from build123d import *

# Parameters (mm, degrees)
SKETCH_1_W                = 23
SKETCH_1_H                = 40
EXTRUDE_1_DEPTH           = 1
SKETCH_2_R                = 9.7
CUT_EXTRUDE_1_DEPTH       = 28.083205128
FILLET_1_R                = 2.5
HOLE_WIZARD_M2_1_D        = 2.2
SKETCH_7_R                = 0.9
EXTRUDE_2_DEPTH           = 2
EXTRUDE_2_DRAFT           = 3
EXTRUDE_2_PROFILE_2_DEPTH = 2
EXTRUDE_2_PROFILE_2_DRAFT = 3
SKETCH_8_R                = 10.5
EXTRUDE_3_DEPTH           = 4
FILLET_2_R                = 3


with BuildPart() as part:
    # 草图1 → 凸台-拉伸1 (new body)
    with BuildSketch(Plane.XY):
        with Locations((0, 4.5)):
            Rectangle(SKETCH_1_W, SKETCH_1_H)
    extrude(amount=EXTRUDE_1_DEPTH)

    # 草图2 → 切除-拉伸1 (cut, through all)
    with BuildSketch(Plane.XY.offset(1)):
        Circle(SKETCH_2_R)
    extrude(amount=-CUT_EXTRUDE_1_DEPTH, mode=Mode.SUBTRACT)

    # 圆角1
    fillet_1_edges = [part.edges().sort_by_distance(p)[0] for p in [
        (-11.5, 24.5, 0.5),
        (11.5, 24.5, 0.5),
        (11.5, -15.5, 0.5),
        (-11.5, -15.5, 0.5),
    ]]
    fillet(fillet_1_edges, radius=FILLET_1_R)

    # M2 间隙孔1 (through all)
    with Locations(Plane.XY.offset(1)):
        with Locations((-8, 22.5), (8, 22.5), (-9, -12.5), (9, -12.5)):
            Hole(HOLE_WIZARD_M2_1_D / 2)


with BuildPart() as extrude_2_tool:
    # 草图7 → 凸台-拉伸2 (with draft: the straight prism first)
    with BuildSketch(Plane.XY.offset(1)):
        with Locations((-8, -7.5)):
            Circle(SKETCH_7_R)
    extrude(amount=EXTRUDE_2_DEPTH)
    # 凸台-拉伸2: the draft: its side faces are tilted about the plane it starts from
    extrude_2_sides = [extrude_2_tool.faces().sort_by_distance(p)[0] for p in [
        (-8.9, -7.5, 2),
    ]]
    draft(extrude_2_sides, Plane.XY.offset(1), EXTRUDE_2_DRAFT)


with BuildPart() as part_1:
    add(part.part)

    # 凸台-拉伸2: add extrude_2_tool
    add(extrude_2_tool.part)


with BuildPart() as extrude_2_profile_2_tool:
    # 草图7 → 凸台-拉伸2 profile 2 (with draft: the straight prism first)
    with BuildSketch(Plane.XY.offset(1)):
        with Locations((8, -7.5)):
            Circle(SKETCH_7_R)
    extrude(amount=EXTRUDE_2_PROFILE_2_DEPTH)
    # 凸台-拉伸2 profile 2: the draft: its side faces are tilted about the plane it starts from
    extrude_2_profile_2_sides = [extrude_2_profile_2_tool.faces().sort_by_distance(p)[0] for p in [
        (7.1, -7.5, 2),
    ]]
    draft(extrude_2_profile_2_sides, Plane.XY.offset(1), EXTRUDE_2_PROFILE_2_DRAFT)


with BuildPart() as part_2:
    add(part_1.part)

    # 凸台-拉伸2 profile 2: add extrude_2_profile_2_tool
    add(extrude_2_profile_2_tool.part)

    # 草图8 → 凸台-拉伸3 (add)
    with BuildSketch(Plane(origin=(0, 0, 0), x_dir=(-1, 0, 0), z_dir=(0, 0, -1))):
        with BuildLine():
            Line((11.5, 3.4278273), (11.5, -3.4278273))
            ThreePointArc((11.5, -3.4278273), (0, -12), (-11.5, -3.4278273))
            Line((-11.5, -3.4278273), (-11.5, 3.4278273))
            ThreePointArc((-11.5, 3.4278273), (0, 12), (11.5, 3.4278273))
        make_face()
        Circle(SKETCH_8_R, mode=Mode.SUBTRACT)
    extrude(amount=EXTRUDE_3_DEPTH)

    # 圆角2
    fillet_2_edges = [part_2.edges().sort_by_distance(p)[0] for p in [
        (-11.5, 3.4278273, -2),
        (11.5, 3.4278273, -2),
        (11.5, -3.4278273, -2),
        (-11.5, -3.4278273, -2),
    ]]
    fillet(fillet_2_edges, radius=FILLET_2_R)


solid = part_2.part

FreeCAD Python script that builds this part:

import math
import FreeCAD as App
import Part
import Sketcher


def edges_at(feature, points):
    """Names of the edges that pass closest to the given points."""
    edges = feature.Shape.Edges
    near = lambda p: min(range(len(edges)), key=lambda i: edges[i].distToShape(Part.Vertex(*p))[0])
    return sorted({f"Edge{near(p) + 1}" for p in points})


def faces_at(feature, points):
    """Names of the faces that lie closest to the given points."""
    faces = feature.Shape.Faces
    near = lambda p: min(range(len(faces)), key=lambda i: faces[i].distToShape(Part.Vertex(*p))[0])
    return sorted({f"Face{near(p) + 1}" for p in points})


def add_polygon(sketch, points):
    """Adds a closed chain of lines whose ends are joined by coincident constraints."""
    first, n = sketch.GeometryCount, len(points)
    for a, b in zip(points, points[1:] + points[:1]):
        sketch.addGeometry(Part.LineSegment(App.Vector(*a, 0), App.Vector(*b, 0)), False)
    for i in range(n):
        sketch.addConstraint(Sketcher.Constraint("Coincident", first + i, 2, first + (i + 1) % n, 1))

doc = App.newDocument("Part")
body = doc.addObject("PartDesign::Body", "Body")

# Sketch on XY plane
sketch1 = body.newObject("Sketcher::SketchObject", "Sketch")
sketch1.AttachmentSupport = (doc.getObject("XY_Plane"), [""])
sketch1.MapMode = "FlatFace"
add_polygon(sketch1, [(-12, 24), (-12, -16), (12, -16), (12, 24)])  # lines 0-3
sketch1.addConstraint(Sketcher.Constraint("Vertical", 0))
sketch1.addConstraint(Sketcher.Constraint("Horizontal", 1))
sketch1.addConstraint(Sketcher.Constraint("Vertical", 2))
sketch1.addConstraint(Sketcher.Constraint("Horizontal", 3))
sketch1.addConstraint(Sketcher.Constraint("DistanceX", 1, 1, 1, 2, 23.0))
sketch1.addConstraint(Sketcher.Constraint("DistanceY", 0, 2, 0, 1, 40.0))
sketch1.addConstraint(Sketcher.Constraint("DistanceX", 0, 2, -1, 1, 11.5))
sketch1.addConstraint(Sketcher.Constraint("DistanceY", 0, 2, -1, 1, 15.5))
pad1 = body.newObject("PartDesign::Pad", "Pad")
pad1.Profile = sketch1
pad1.Length = 1

# Sketch on XY plane
sketch2 = body.newObject("Sketcher::SketchObject", "Sketch001")
sketch2.AttachmentSupport = (doc.getObject("XY_Plane"), [""])
sketch2.MapMode = "FlatFace"
sketch2.AttachmentOffset = App.Placement(App.Vector(0, 0, 1), App.Rotation())
sketch2.addGeometry(Part.Circle(App.Vector(0, 0, 0), App.Vector(0, 0, 1), 10), False)
sketch2.addConstraint(Sketcher.Constraint("Coincident", 0, 3, -1, 1))
sketch2.addConstraint(Sketcher.Constraint("Diameter", 0, 19.4))
pocket1 = body.newObject("PartDesign::Pocket", "Pocket")
pocket1.Profile = sketch2
pocket1.Type = "ThroughAll"
doc.recompute()

fillet = body.newObject("PartDesign::Fillet", "Fillet")
fillet.Base = (pocket1, edges_at(pocket1, [
    (-11.5, 24.5, 0.5),
    (11.5, 24.5, 0.5),
    (11.5, -15.5, 0.5),
    (-11.5, -15.5, 0.5),
]))
fillet.Radius = 2.5

# Sketch on XY plane
sketch3 = body.newObject("Sketcher::SketchObject", "Sketch002")
sketch3.AttachmentSupport = (doc.getObject("XY_Plane"), [""])
sketch3.MapMode = "FlatFace"
sketch3.AttachmentOffset = App.Placement(App.Vector(0, 0, 1), App.Rotation())
sketch3.addGeometry(Part.Circle(App.Vector(-8, 22.5, 0), App.Vector(0, 0, 1), 1.1), False)
sketch3.addGeometry(Part.Circle(App.Vector(8, 22.5, 0), App.Vector(0, 0, 1), 1.1), False)
sketch3.addGeometry(Part.Circle(App.Vector(-9, -12.5, 0), App.Vector(0, 0, 1), 1.1), False)
sketch3.addGeometry(Part.Circle(App.Vector(9, -12.5, 0), App.Vector(0, 0, 1), 1.1), False)
sketch3.addConstraint(Sketcher.Constraint("Equal", 0, 1))
sketch3.addConstraint(Sketcher.Constraint("Equal", 1, 2))
sketch3.addConstraint(Sketcher.Constraint("Equal", 2, 3))
sketch3.addConstraint(Sketcher.Constraint("Symmetric", 0, 3, 1, 3, -2))
sketch3.addConstraint(Sketcher.Constraint("Symmetric", 2, 3, 3, 3, -2))
sketch3.addConstraint(Sketcher.Constraint("Diameter", 0, 2.2))
sketch3.addConstraint(Sketcher.Constraint("DistanceX", 0, 3, -1, 1, 8.0))
sketch3.addConstraint(Sketcher.Constraint("DistanceX", 2, 3, -1, 1, 9.0))
sketch3.addConstraint(Sketcher.Constraint("DistanceY", 2, 3, 0, 3, 35.0))
sketch3.addConstraint(Sketcher.Constraint("DistanceY", -1, 1, 0, 3, 22.5))
doc.recompute()
hole = body.newObject("PartDesign::Hole", "Hole")
hole.Profile = sketch3
hole.ThreadType = "None"
hole.Diameter = 2.2
hole.DepthType = "ThroughAll"
body2 = doc.addObject("PartDesign::Body", "Body001")

# Sketch on XY plane
sketch4 = body2.newObject("Sketcher::SketchObject", "Sketch003")
sketch4.AttachmentSupport = (doc.getObject("XY_Plane001"), [""])
sketch4.MapMode = "FlatFace"
sketch4.AttachmentOffset = App.Placement(App.Vector(0, 0, 1), App.Rotation())
sketch4.addGeometry(Part.Circle(App.Vector(-8, -7.5, 0), App.Vector(0, 0, 1), 0.9), False)
sketch4.addConstraint(Sketcher.Constraint("Diameter", 0, 1.8))
sketch4.addConstraint(Sketcher.Constraint("DistanceX", 0, 3, -1, 1, 8.0))
sketch4.addConstraint(Sketcher.Constraint("DistanceY", 0, 3, -1, 1, 7.5))
pad2 = body2.newObject("PartDesign::Pad", "Pad001")
pad2.Profile = sketch4
pad2.Length = 2
doc.recompute()

datumplane = body2.newObject("PartDesign::Plane", "DatumPlane")
datumplane.AttachmentSupport = (doc.getObject("XY_Plane001"), [""])
datumplane.MapMode = "FlatFace"
datumplane.AttachmentOffset = App.Placement(App.Vector(0, 0, 1), App.Rotation())
draft = body2.newObject("PartDesign::Draft", "Draft")
draft.Base = (pad2, faces_at(pad2, [(-8.9, -7.5, 2)]))
draft.NeutralPlane = (datumplane, [""])
draft.Angle = 3
draft.Reversed = False
doc.recompute()

boolean = body.newObject("PartDesign::Boolean", "Boolean")
boolean.Type = "Fuse"
boolean.addObjects([body2])
body3 = doc.addObject("PartDesign::Body", "Body002")

# Sketch on XY plane
sketch5 = body3.newObject("Sketcher::SketchObject", "Sketch004")
sketch5.AttachmentSupport = (doc.getObject("XY_Plane002"), [""])
sketch5.MapMode = "FlatFace"
sketch5.AttachmentOffset = App.Placement(App.Vector(0, 0, 1), App.Rotation())
sketch5.addGeometry(Part.Circle(App.Vector(8, -7.5, 0), App.Vector(0, 0, 1), 0.9), False)
sketch5.addConstraint(Sketcher.Constraint("Diameter", 0, 1.8))
sketch5.addConstraint(Sketcher.Constraint("DistanceX", -1, 1, 0, 3, 8.0))
sketch5.addConstraint(Sketcher.Constraint("DistanceY", 0, 3, -1, 1, 7.5))
pad3 = body3.newObject("PartDesign::Pad", "Pad002")
pad3.Profile = sketch5
pad3.Length = 2
doc.recompute()

datumplane2 = body3.newObject("PartDesign::Plane", "DatumPlane001")
datumplane2.AttachmentSupport = (doc.getObject("XY_Plane002"), [""])
datumplane2.MapMode = "FlatFace"
datumplane2.AttachmentOffset = App.Placement(App.Vector(0, 0, 1), App.Rotation())
draft2 = body3.newObject("PartDesign::Draft", "Draft001")
draft2.Base = (pad3, faces_at(pad3, [(7.1, -7.5, 2)]))
draft2.NeutralPlane = (datumplane2, [""])
draft2.Angle = 3
draft2.Reversed = False
doc.recompute()

boolean2 = body.newObject("PartDesign::Boolean", "Boolean001")
boolean2.Type = "Fuse"
boolean2.addObjects([body3])

# Sketch on XY plane
sketch6 = body.newObject("Sketcher::SketchObject", "Sketch005")
sketch6.AttachmentSupport = (doc.getObject("XY_Plane"), [""])
sketch6.MapMode = "FlatFace"
sketch6.addGeometry(Part.LineSegment(App.Vector(-12, -3, 0), App.Vector(-12, 3, 0)), False)
sketch6.addGeometry(Part.ArcOfCircle(Part.Circle(App.Vector(0, 0, 0), App.Vector(0, 0, 1), 12), math.radians(17), math.radians(163)), False)
sketch6.addGeometry(Part.LineSegment(App.Vector(12, 3, 0), App.Vector(12, -3, 0)), False)
sketch6.addGeometry(Part.ArcOfCircle(Part.Circle(App.Vector(0, 0, 0), App.Vector(0, 0, 1), 12), math.radians(-163), math.radians(-17)), False)
sketch6.addGeometry(Part.Circle(App.Vector(0, 0, 0), App.Vector(0, 0, 1), 10), False)
sketch6.addConstraint(Sketcher.Constraint("Coincident", 0, 2, 1, 2))
sketch6.addConstraint(Sketcher.Constraint("Coincident", 1, 1, 2, 1))
sketch6.addConstraint(Sketcher.Constraint("Coincident", 2, 2, 3, 2))
sketch6.addConstraint(Sketcher.Constraint("Coincident", 3, 1, 0, 1))
sketch6.addConstraint(Sketcher.Constraint("Vertical", 0))
sketch6.addConstraint(Sketcher.Constraint("Vertical", 2))
sketch6.addConstraint(Sketcher.Constraint("Coincident", 1, 3, -1, 1))
sketch6.addConstraint(Sketcher.Constraint("Coincident", 3, 3, -1, 1))
sketch6.addConstraint(Sketcher.Constraint("Coincident", 4, 3, -1, 1))
sketch6.addConstraint(Sketcher.Constraint("Equal", 1, 3))
sketch6.addConstraint(Sketcher.Constraint("Horizontal", 0, 2, 1, 1))
sketch6.addConstraint(Sketcher.Constraint("Diameter", 4, 21.0))
sketch6.addConstraint(Sketcher.Constraint("Radius", 1, 12.0))
sketch6.addConstraint(Sketcher.Constraint("DistanceX", 0, 2, 1, 1, 23.0))
pad4 = body.newObject("PartDesign::Pad", "Pad003")
pad4.Profile = sketch6
pad4.Length = 4
pad4.Reversed = True
doc.recompute()

fillet2 = body.newObject("PartDesign::Fillet", "Fillet001")
fillet2.Base = (pad4, edges_at(pad4, [
    (-11.5, 3.428, -2),
    (11.5, 3.428, -2),
    (11.5, -3.428, -2),
    (-11.5, -3.428, -2),
]))
fillet2.Radius = 3

doc.recompute()
